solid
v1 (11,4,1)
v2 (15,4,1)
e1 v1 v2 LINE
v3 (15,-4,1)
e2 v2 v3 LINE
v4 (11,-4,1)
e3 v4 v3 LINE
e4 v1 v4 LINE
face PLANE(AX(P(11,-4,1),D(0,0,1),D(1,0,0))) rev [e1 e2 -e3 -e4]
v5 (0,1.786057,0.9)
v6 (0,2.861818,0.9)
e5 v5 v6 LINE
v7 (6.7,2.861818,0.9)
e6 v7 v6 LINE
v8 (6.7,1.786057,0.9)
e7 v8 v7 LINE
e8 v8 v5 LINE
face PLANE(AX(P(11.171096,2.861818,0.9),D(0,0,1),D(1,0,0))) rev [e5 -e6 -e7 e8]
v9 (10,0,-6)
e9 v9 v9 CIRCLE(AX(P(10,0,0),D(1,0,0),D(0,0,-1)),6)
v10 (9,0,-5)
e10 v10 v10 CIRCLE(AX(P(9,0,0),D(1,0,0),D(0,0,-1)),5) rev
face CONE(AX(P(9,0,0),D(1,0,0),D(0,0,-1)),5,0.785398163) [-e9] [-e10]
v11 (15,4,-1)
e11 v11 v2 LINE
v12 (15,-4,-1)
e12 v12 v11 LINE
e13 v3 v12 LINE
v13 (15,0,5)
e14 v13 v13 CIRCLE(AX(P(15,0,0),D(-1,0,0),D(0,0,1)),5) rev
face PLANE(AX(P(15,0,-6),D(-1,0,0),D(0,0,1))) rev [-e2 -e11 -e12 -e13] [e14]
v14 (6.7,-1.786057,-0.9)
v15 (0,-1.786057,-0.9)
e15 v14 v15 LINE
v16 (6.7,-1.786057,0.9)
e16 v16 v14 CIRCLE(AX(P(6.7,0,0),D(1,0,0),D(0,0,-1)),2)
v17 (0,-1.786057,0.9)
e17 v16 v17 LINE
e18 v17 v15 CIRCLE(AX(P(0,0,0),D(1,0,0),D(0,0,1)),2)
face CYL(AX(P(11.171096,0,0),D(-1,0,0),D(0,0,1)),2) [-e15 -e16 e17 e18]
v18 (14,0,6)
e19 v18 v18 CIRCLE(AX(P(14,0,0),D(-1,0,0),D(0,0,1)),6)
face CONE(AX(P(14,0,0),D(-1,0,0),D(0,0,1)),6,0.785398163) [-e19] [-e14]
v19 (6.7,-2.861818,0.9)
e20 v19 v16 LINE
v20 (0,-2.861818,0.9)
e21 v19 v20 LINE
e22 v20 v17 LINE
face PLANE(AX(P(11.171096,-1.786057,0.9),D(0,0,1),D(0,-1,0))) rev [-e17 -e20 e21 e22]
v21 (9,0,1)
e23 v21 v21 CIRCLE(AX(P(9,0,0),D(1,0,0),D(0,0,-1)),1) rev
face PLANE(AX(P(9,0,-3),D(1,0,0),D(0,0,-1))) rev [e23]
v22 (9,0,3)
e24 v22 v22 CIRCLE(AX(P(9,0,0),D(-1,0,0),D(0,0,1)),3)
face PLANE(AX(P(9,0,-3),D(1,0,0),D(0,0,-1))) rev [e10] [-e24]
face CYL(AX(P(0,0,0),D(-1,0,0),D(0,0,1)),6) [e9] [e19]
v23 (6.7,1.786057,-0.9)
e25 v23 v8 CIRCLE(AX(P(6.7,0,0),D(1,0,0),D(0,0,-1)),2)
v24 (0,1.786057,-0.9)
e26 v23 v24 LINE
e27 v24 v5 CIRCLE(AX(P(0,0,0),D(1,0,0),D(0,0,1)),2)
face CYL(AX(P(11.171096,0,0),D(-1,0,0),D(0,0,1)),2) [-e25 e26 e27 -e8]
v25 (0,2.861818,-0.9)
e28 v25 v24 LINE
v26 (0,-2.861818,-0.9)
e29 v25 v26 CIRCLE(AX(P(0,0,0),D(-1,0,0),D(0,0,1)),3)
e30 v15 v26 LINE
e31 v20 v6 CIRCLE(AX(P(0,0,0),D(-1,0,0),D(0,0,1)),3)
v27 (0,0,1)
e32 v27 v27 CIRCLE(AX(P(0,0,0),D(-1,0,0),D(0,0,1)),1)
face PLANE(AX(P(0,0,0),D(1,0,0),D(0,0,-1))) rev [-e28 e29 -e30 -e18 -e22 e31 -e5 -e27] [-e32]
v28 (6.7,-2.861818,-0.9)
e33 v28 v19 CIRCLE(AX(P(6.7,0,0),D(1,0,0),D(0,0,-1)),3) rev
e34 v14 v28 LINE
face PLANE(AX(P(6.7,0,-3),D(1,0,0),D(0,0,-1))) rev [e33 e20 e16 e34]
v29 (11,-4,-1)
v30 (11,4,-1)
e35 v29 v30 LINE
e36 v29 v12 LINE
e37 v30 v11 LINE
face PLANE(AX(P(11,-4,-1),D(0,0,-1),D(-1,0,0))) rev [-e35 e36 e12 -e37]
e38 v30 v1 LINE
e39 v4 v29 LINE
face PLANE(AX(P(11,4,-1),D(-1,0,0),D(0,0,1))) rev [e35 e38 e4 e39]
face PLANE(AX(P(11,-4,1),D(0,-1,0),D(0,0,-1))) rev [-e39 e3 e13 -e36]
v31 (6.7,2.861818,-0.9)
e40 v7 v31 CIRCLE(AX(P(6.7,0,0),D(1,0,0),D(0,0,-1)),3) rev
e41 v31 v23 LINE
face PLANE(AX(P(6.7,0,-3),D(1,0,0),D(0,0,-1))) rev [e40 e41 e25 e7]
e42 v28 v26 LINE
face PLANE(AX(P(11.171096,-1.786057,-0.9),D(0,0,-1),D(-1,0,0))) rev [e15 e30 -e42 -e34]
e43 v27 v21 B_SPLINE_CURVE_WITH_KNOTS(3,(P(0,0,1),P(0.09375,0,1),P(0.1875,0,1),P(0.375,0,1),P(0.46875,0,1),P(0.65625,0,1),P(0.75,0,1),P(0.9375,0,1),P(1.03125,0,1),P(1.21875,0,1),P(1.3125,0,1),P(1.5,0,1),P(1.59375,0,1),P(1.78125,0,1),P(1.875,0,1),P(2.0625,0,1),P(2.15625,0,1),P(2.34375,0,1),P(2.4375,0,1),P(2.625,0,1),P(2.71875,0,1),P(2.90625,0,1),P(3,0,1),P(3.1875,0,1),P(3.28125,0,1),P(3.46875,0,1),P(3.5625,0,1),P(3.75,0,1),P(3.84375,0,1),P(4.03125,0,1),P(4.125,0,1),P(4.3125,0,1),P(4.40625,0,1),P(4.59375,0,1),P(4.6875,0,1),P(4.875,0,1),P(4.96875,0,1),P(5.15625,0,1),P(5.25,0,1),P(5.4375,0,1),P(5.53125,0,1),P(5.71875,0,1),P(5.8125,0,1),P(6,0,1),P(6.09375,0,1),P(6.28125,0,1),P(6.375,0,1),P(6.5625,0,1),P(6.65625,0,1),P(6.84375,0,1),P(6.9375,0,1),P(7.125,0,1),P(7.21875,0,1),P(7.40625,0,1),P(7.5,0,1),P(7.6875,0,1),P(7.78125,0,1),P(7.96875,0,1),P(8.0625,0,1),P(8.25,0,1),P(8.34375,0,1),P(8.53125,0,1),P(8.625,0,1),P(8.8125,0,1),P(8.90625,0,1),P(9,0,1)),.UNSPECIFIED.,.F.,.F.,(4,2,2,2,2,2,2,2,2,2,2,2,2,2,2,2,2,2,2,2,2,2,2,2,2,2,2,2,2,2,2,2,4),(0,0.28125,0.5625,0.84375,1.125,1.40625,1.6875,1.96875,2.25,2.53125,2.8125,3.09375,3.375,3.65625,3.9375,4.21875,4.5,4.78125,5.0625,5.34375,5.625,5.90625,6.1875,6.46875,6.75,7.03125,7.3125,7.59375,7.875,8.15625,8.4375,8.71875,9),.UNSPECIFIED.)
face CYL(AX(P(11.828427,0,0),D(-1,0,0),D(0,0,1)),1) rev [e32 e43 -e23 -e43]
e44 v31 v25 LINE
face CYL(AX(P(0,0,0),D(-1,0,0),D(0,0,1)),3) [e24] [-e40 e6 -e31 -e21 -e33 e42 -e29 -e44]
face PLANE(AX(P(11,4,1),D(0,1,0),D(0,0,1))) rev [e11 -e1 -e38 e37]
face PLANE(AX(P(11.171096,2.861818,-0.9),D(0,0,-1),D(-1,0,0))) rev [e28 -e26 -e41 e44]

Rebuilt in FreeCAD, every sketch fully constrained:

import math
import FreeCAD as App
import Part
import Sketcher


def edges_at(feature, points):
    """Names of the edges that pass closest to the given points."""
    edges = feature.Shape.Edges
    near = lambda p: min(range(len(edges)), key=lambda i: edges[i].distToShape(Part.Vertex(*p))[0])
    return sorted({f"Edge{near(p) + 1}" for p in points})

doc = App.newDocument("Part")
body = doc.addObject("PartDesign::Body", "Body")

# Sketch on XZ plane
sketch1 = body.newObject("Sketcher::SketchObject", "Sketch")
sketch1.AttachmentSupport = (doc.getObject("XZ_Plane"), [""])
sketch1.MapMode = "FlatFace"
sketch1.addGeometry([
    Part.LineSegment(App.Vector(0, -3, 0), App.Vector(0, 0, 0)),  # 0
    Part.LineSegment(App.Vector(0, 0, 0), App.Vector(15, 0, 0)),  # 1
    Part.LineSegment(App.Vector(15, 0, 0), App.Vector(15, -6, 0)),  # 2
    Part.LineSegment(App.Vector(15, -6, 0), App.Vector(9, -6, 0)),  # 3
    Part.LineSegment(App.Vector(9, -6, 0), App.Vector(9, -3, 0)),  # 4
    Part.LineSegment(App.Vector(9, -3, 0), App.Vector(0, -3, 0)),  # 5
], False)
sketch1.addConstraint([
    Sketcher.Constraint("Coincident", 0, 2, 1, 1),
    Sketcher.Constraint("Coincident", 1, 2, 2, 1),
    Sketcher.Constraint("Coincident", 2, 2, 3, 1),
    Sketcher.Constraint("Coincident", 3, 2, 4, 1),
    Sketcher.Constraint("Coincident", 4, 2, 5, 1),
    Sketcher.Constraint("Coincident", 5, 2, 0, 1),
    Sketcher.Constraint("Vertical", 0),
    Sketcher.Constraint("Horizontal", 1),
    Sketcher.Constraint("Vertical", 2),
    Sketcher.Constraint("Horizontal", 3),
    Sketcher.Constraint("Vertical", 4),
    Sketcher.Constraint("Horizontal", 5),
    Sketcher.Constraint("Coincident", 0, 2, -1, 1),
    Sketcher.Constraint("Equal", 3, 2),
    Sketcher.Constraint("Equal", 0, 4),
    Sketcher.Constraint("DistanceX", 1, 1, 1, 2, 15.0),
    Sketcher.Constraint("DistanceX", 3, 2, 3, 1, 6.0),
])
revolution = body.newObject("PartDesign::Revolution", "Revolution")
revolution.Profile = sketch1
revolution.ReferenceAxis = (sketch1, ["H_Axis"])
revolution.Angle = 360

# Sketch on YZ plane
sketch2 = body.newObject("Sketcher::SketchObject", "Sketch001")
sketch2.AttachmentSupport = (doc.getObject("YZ_Plane"), [""])
sketch2.MapMode = "FlatFace"
sketch2.addGeometry(Part.Circle(App.Vector(0, 0, 0), App.Vector(0, 0, 1), 1), False)
sketch2.addConstraint([
    Sketcher.Constraint("Coincident", 0, 3, -1, 1),
    Sketcher.Constraint("Diameter", 0, 2.0),
])
pocket1 = body.newObject("PartDesign::Pocket", "Pocket")
pocket1.Profile = sketch2
pocket1.Length = 9
pocket1.Reversed = True

# Sketch on YZ plane
sketch3 = body.newObject("Sketcher::SketchObject", "Sketch002")
sketch3.AttachmentSupport = (doc.getObject("YZ_Plane"), [""])
sketch3.MapMode = "FlatFace"
sketch3.AttachmentOffset = App.Placement(App.Vector(0, 0, 15), App.Rotation())
sketch3.addGeometry([
    Part.LineSegment(App.Vector(4, 1, 0), App.Vector(-4, 1, 0)),
    Part.LineSegment(App.Vector(-4, 1, 0), App.Vector(-4, -1, 0)),
    Part.LineSegment(App.Vector(-4, -1, 0), App.Vector(4, -1, 0)),
    Part.LineSegment(App.Vector(4, -1, 0), App.Vector(4, 1, 0)),
], False)
sketch3.addConstraint([
    Sketcher.Constraint("Coincident", 0, 2, 1, 1),
    Sketcher.Constraint("Coincident", 1, 2, 2, 1),
    Sketcher.Constraint("Coincident", 2, 2, 3, 1),
    Sketcher.Constraint("Coincident", 3, 2, 0, 1),
    Sketcher.Constraint("Horizontal", 0),
    Sketcher.Constraint("Vertical", 1),
    Sketcher.Constraint("Horizontal", 2),
    Sketcher.Constraint("Vertical", 3),
    Sketcher.Constraint("Symmetric", 0, 2, 2, 2, -1, 1),
    Sketcher.Constraint("DistanceX", 0, 2, 0, 1, 8.0),
    Sketcher.Constraint("DistanceY", 1, 2, 1, 1, 2.0),
])
pocket2 = body.newObject("PartDesign::Pocket", "Pocket001")
pocket2.Profile = sketch3
pocket2.Length = 4
doc.recompute()

chamfer = body.newObject("PartDesign::Chamfer", "Chamfer")
chamfer.Base = (pocket2, edges_at(pocket2, [(15, 0, -6), (9, 0, -6)]))
chamfer.Size = 1

# Sketch on YZ plane
sketch4 = body.newObject("Sketcher::SketchObject", "Sketch003")
sketch4.AttachmentSupport = (doc.getObject("YZ_Plane"), [""])
sketch4.MapMode = "FlatFace"
sketch4.AttachmentOffset = App.Placement(App.Vector(0, 0, 6.7), App.Rotation())
sketch4.addGeometry([
    Part.LineSegment(App.Vector(2.9, -0.9, 0), App.Vector(1.8, -0.9, 0)),  # 0
    Part.ArcOfCircle(Part.Circle(App.Vector(0, 0, 0), App.Vector(0, 0, 1), 2), math.radians(-27), math.radians(27)),  # 1
    Part.LineSegment(App.Vector(1.8, 0.9, 0), App.Vector(2.9, 0.9, 0)),  # 2
    Part.ArcOfCircle(Part.Circle(App.Vector(0, 0, 0), App.Vector(0, 0, 1), 3), math.radians(-17), math.radians(17)),  # 3
    Part.LineSegment(App.Vector(-1.8, -0.9, 0), App.Vector(-2.9, -0.9, 0)),  # 4
    Part.ArcOfCircle(Part.Circle(App.Vector(0, 0, 0), App.Vector(0, 0, 1), 3), math.radians(163), math.radians(197)),  # 5
    Part.LineSegment(App.Vector(-2.9, 0.9, 0), App.Vector(-1.8, 0.9, 0)),  # 6
    Part.ArcOfCircle(Part.Circle(App.Vector(0, 0, 0), App.Vector(0, 0, 1), 2), math.radians(153), math.radians(207)),  # 7
], False)
sketch4.addConstraint([
    Sketcher.Constraint("Coincident", 0, 2, 1, 1),
    Sketcher.Constraint("Coincident", 1, 2, 2, 1),
    Sketcher.Constraint("Coincident", 2, 2, 3, 2),
    Sketcher.Constraint("Coincident", 3, 1, 0, 1),
    Sketcher.Constraint("Coincident", 4, 2, 5, 2),
    Sketcher.Constraint("Coincident", 5, 1, 6, 1),
    Sketcher.Constraint("Coincident", 6, 2, 7, 1),
    Sketcher.Constraint("Coincident", 7, 2, 4, 1),
    Sketcher.Constraint("Horizontal", 0),
    Sketcher.Constraint("Horizontal", 2),
    Sketcher.Constraint("Horizontal", 4),
    Sketcher.Constraint("Horizontal", 6),
    Sketcher.Constraint("Coincident", 1, 3, -1, 1),
    Sketcher.Constraint("Coincident", 3, 3, -1, 1),
    Sketcher.Constraint("Coincident", 5, 3, -1, 1),
    Sketcher.Constraint("Coincident", 7, 3, -1, 1),
    Sketcher.Constraint("Equal", 3, 5),
    Sketcher.Constraint("Equal", 1, 7),
    Sketcher.Constraint("Horizontal", 3, 1, 4, 2),
    Sketcher.Constraint("Horizontal", 2, 2, 5, 1),
    Sketcher.Constraint("Vertical", 0, 2, 1, 2),
    Sketcher.Constraint("Radius", 1, 2.0),
    Sketcher.Constraint("Radius", 3, 3.0),
    Sketcher.Constraint("DistanceY", 0, 2, -1, 1, 0.9),
])
pocket3 = body.newObject("PartDesign::Pocket", "Pocket002")
pocket3.Profile = sketch4
pocket3.Length = 6.7

doc.recompute()
